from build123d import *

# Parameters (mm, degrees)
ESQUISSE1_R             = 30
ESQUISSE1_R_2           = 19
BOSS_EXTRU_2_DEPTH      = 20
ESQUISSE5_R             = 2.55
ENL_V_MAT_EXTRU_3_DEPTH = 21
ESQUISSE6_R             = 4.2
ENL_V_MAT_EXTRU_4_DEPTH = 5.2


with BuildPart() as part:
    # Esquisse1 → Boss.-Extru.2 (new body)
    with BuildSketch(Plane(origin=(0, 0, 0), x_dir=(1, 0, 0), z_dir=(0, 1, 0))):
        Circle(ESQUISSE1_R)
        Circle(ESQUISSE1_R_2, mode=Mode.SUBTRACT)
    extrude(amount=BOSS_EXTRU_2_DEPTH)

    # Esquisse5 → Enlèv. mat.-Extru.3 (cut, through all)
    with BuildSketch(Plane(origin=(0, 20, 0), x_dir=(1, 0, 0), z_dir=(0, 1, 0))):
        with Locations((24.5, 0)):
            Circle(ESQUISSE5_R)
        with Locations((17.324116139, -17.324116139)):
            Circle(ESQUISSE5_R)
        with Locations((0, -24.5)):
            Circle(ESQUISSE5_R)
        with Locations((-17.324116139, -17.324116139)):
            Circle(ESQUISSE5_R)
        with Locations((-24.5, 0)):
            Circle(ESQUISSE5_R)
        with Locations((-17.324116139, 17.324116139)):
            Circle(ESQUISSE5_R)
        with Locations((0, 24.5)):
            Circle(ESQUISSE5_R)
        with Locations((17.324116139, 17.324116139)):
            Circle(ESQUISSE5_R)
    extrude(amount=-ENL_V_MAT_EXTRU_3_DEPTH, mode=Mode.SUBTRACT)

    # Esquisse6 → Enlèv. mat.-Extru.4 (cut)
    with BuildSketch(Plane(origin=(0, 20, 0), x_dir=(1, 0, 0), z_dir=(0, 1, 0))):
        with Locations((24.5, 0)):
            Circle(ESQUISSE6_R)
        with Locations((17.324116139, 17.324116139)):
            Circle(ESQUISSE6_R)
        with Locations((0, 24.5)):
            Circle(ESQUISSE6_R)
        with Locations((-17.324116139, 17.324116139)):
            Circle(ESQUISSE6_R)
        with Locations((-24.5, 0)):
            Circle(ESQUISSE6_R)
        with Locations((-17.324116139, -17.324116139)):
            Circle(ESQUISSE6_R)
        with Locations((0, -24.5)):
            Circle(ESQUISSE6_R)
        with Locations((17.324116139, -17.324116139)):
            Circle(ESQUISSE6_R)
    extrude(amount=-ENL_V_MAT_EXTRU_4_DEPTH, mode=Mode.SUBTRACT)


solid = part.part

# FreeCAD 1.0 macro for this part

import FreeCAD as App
import Part
import Sketcher

doc = App.newDocument("Part")
body = doc.addObject("PartDesign::Body", "Body")

sketch1 = doc.addObject("Sketcher::SketchObject", "Sketch")
body.addObject(sketch1)
sketch1.AttachmentSupport = (doc.XZ_Plane, [""])
sketch1.MapMode = "FlatFace"
sketch1.addGeometry(Part.Circle(App.Vector(0, 0, 0), App.Vector(0, 0, 1), 30), False)
sketch1.addGeometry(Part.Circle(App.Vector(0, 0, 0), App.Vector(0, 0, 1), 19), False)
sketch1.addConstraint(Sketcher.Constraint("Coincident", 0, 3, -1, 1))
sketch1.addConstraint(Sketcher.Constraint("Coincident", 1, 3, -1, 1))
sketch1.addConstraint(Sketcher.Constraint("Diameter", 0, 60.0))
sketch1.addConstraint(Sketcher.Constraint("Diameter", 1, 38.0))
pad1 = doc.addObject("PartDesign::Pad", "Pad")
body.addObject(pad1)
pad1.Profile = sketch1
pad1.Length = 20
pad1.Reversed = True

sketch2 = doc.addObject("Sketcher::SketchObject", "Sketch001")
body.addObject(sketch2)
sketch2.AttachmentSupport = (doc.XZ_Plane, [""])
sketch2.MapMode = "FlatFace"
sketch2.AttachmentOffset = App.Placement(App.Vector(0, 0, -20), App.Rotation())
sketch2.addGeometry(Part.Circle(App.Vector(24.5, 0, 0), App.Vector(0, 0, 1), 2.55), False)
sketch2.addGeometry(Part.Circle(App.Vector(17.324116, 17.324116, 0), App.Vector(0, 0, 1), 2.55), False)
sketch2.addGeometry(Part.Circle(App.Vector(0, 24.5, 0), App.Vector(0, 0, 1), 2.55), False)
sketch2.addGeometry(Part.Circle(App.Vector(-17.324116, 17.324116, 0), App.Vector(0, 0, 1), 2.55), False)
sketch2.addGeometry(Part.Circle(App.Vector(-24.5, 0, 0), App.Vector(0, 0, 1), 2.55), False)
sketch2.addGeometry(Part.Circle(App.Vector(-17.324116, -17.324116, 0), App.Vector(0, 0, 1), 2.55), False)
sketch2.addGeometry(Part.Circle(App.Vector(0, -24.5, 0), App.Vector(0, 0, 1), 2.55), False)
sketch2.addGeometry(Part.Circle(App.Vector(17.324116, -17.324116, 0), App.Vector(0, 0, 1), 2.55), False)
sketch2.addConstraint(Sketcher.Constraint("Equal", 0, 1))
sketch2.addConstraint(Sketcher.Constraint("Equal", 1, 2))
sketch2.addConstraint(Sketcher.Constraint("Equal", 2, 3))
sketch2.addConstraint(Sketcher.Constraint("Equal", 3, 4))
sketch2.addConstraint(Sketcher.Constraint("Equal", 4, 5))
sketch2.addConstraint(Sketcher.Constraint("Equal", 5, 6))
sketch2.addConstraint(Sketcher.Constraint("Equal", 6, 7))
sketch2.addConstraint(Sketcher.Constraint("Symmetric", 0, 3, 4, 3, -1, 1))
sketch2.addConstraint(Sketcher.Constraint("Symmetric", 1, 3, 5, 3, -1, 1))
sketch2.addConstraint(Sketcher.Constraint("Symmetric", 2, 3, 6, 3, -1, 1))
sketch2.addConstraint(Sketcher.Constraint("Symmetric", 3, 3, 7, 3, -1, 1))
sketch2.addConstraint(Sketcher.Constraint("Symmetric", 1, 3, 3, 3, -2))
sketch2.addConstraint(Sketcher.Constraint("PointOnObject", 0, 3, -1))
sketch2.addConstraint(Sketcher.Constraint("PointOnObject", 2, 3, -2))
sketch2.addConstraint(Sketcher.Constraint("Diameter", 0, 5.1))
sketch2.addConstraint(Sketcher.Constraint("DistanceX", 4, 3, 0, 3, 49.0))
sketch2.addConstraint(Sketcher.Constraint("DistanceY", -1, 1, 2, 3, 24.5))
sketch2.addConstraint(Sketcher.Constraint("DistanceX", -1, 1, 1, 3, 17.324116))
sketch2.addConstraint(Sketcher.Constraint("DistanceY", -1, 1, 1, 3, 17.324116))
pocket1 = doc.addObject("PartDesign::Pocket", "Pocket")
body.addObject(pocket1)
pocket1.Profile = sketch2
pocket1.Type = "ThroughAll"
pocket1.Reversed = True

sketch3 = doc.addObject("Sketcher::SketchObject", "Sketch002")
body.addObject(sketch3)
sketch3.AttachmentSupport = (doc.XZ_Plane, [""])
sketch3.MapMode = "FlatFace"
sketch3.AttachmentOffset = App.Placement(App.Vector(0, 0, -20), App.Rotation())
sketch3.addGeometry(Part.Circle(App.Vector(24.5, 0, 0), App.Vector(0, 0, 1), 4.2), False)
sketch3.addGeometry(Part.Circle(App.Vector(17.324116, -17.324116, 0), App.Vector(0, 0, 1), 4.2), False)
sketch3.addGeometry(Part.Circle(App.Vector(0, -24.5, 0), App.Vector(0, 0, 1), 4.2), False)
sketch3.addGeometry(Part.Circle(App.Vector(-17.324116, -17.324116, 0), App.Vector(0, 0, 1), 4.2), False)
sketch3.addGeometry(Part.Circle(App.Vector(-24.5, 0, 0), App.Vector(0, 0, 1), 4.2), False)
sketch3.addGeometry(Part.Circle(App.Vector(-17.324116, 17.324116, 0), App.Vector(0, 0, 1), 4.2), False)
sketch3.addGeometry(Part.Circle(App.Vector(0, 24.5, 0), App.Vector(0, 0, 1), 4.2), False)
sketch3.addGeometry(Part.Circle(App.Vector(17.324116, 17.324116, 0), App.Vector(0, 0, 1), 4.2), False)
sketch3.addConstraint(Sketcher.Constraint("Equal", 0, 1))
sketch3.addConstraint(Sketcher.Constraint("Equal", 1, 2))
sketch3.addConstraint(Sketcher.Constraint("Equal", 2, 3))
sketch3.addConstraint(Sketcher.Constraint("Equal", 3, 4))
sketch3.addConstraint(Sketcher.Constraint("Equal", 4, 5))
sketch3.addConstraint(Sketcher.Constraint("Equal", 5, 6))
sketch3.addConstraint(Sketcher.Constraint("Equal", 6, 7))
sketch3.addConstraint(Sketcher.Constraint("Symmetric", 0, 3, 4, 3, -1, 1))
sketch3.addConstraint(Sketcher.Constraint("Symmetric", 1, 3, 5, 3, -1, 1))
sketch3.addConstraint(Sketcher.Constraint("Symmetric", 2, 3, 6, 3, -1, 1))
sketch3.addConstraint(Sketcher.Constraint("Symmetric", 3, 3, 7, 3, -1, 1))
sketch3.addConstraint(Sketcher.Constraint("Symmetric", 1, 3, 3, 3, -2))
sketch3.addConstraint(Sketcher.Constraint("PointOnObject", 0, 3, -1))
sketch3.addConstraint(Sketcher.Constraint("PointOnObject", 2, 3, -2))
sketch3.addConstraint(Sketcher.Constraint("Diameter", 0, 8.4))
sketch3.addConstraint(Sketcher.Constraint("DistanceX", 4, 3, 0, 3, 49.0))
sketch3.addConstraint(Sketcher.Constraint("DistanceY", 2, 3, -1, 1, 24.5))
sketch3.addConstraint(Sketcher.Constraint("DistanceX", -1, 1, 1, 3, 17.324116))
sketch3.addConstraint(Sketcher.Constraint("DistanceY", 1, 3, -1, 1, 17.324116))
pocket2 = doc.addObject("PartDesign::Pocket", "Pocket001")
body.addObject(pocket2)
pocket2.Profile = sketch3
pocket2.Length = 5.2
pocket2.Reversed = True

doc.recompute()
